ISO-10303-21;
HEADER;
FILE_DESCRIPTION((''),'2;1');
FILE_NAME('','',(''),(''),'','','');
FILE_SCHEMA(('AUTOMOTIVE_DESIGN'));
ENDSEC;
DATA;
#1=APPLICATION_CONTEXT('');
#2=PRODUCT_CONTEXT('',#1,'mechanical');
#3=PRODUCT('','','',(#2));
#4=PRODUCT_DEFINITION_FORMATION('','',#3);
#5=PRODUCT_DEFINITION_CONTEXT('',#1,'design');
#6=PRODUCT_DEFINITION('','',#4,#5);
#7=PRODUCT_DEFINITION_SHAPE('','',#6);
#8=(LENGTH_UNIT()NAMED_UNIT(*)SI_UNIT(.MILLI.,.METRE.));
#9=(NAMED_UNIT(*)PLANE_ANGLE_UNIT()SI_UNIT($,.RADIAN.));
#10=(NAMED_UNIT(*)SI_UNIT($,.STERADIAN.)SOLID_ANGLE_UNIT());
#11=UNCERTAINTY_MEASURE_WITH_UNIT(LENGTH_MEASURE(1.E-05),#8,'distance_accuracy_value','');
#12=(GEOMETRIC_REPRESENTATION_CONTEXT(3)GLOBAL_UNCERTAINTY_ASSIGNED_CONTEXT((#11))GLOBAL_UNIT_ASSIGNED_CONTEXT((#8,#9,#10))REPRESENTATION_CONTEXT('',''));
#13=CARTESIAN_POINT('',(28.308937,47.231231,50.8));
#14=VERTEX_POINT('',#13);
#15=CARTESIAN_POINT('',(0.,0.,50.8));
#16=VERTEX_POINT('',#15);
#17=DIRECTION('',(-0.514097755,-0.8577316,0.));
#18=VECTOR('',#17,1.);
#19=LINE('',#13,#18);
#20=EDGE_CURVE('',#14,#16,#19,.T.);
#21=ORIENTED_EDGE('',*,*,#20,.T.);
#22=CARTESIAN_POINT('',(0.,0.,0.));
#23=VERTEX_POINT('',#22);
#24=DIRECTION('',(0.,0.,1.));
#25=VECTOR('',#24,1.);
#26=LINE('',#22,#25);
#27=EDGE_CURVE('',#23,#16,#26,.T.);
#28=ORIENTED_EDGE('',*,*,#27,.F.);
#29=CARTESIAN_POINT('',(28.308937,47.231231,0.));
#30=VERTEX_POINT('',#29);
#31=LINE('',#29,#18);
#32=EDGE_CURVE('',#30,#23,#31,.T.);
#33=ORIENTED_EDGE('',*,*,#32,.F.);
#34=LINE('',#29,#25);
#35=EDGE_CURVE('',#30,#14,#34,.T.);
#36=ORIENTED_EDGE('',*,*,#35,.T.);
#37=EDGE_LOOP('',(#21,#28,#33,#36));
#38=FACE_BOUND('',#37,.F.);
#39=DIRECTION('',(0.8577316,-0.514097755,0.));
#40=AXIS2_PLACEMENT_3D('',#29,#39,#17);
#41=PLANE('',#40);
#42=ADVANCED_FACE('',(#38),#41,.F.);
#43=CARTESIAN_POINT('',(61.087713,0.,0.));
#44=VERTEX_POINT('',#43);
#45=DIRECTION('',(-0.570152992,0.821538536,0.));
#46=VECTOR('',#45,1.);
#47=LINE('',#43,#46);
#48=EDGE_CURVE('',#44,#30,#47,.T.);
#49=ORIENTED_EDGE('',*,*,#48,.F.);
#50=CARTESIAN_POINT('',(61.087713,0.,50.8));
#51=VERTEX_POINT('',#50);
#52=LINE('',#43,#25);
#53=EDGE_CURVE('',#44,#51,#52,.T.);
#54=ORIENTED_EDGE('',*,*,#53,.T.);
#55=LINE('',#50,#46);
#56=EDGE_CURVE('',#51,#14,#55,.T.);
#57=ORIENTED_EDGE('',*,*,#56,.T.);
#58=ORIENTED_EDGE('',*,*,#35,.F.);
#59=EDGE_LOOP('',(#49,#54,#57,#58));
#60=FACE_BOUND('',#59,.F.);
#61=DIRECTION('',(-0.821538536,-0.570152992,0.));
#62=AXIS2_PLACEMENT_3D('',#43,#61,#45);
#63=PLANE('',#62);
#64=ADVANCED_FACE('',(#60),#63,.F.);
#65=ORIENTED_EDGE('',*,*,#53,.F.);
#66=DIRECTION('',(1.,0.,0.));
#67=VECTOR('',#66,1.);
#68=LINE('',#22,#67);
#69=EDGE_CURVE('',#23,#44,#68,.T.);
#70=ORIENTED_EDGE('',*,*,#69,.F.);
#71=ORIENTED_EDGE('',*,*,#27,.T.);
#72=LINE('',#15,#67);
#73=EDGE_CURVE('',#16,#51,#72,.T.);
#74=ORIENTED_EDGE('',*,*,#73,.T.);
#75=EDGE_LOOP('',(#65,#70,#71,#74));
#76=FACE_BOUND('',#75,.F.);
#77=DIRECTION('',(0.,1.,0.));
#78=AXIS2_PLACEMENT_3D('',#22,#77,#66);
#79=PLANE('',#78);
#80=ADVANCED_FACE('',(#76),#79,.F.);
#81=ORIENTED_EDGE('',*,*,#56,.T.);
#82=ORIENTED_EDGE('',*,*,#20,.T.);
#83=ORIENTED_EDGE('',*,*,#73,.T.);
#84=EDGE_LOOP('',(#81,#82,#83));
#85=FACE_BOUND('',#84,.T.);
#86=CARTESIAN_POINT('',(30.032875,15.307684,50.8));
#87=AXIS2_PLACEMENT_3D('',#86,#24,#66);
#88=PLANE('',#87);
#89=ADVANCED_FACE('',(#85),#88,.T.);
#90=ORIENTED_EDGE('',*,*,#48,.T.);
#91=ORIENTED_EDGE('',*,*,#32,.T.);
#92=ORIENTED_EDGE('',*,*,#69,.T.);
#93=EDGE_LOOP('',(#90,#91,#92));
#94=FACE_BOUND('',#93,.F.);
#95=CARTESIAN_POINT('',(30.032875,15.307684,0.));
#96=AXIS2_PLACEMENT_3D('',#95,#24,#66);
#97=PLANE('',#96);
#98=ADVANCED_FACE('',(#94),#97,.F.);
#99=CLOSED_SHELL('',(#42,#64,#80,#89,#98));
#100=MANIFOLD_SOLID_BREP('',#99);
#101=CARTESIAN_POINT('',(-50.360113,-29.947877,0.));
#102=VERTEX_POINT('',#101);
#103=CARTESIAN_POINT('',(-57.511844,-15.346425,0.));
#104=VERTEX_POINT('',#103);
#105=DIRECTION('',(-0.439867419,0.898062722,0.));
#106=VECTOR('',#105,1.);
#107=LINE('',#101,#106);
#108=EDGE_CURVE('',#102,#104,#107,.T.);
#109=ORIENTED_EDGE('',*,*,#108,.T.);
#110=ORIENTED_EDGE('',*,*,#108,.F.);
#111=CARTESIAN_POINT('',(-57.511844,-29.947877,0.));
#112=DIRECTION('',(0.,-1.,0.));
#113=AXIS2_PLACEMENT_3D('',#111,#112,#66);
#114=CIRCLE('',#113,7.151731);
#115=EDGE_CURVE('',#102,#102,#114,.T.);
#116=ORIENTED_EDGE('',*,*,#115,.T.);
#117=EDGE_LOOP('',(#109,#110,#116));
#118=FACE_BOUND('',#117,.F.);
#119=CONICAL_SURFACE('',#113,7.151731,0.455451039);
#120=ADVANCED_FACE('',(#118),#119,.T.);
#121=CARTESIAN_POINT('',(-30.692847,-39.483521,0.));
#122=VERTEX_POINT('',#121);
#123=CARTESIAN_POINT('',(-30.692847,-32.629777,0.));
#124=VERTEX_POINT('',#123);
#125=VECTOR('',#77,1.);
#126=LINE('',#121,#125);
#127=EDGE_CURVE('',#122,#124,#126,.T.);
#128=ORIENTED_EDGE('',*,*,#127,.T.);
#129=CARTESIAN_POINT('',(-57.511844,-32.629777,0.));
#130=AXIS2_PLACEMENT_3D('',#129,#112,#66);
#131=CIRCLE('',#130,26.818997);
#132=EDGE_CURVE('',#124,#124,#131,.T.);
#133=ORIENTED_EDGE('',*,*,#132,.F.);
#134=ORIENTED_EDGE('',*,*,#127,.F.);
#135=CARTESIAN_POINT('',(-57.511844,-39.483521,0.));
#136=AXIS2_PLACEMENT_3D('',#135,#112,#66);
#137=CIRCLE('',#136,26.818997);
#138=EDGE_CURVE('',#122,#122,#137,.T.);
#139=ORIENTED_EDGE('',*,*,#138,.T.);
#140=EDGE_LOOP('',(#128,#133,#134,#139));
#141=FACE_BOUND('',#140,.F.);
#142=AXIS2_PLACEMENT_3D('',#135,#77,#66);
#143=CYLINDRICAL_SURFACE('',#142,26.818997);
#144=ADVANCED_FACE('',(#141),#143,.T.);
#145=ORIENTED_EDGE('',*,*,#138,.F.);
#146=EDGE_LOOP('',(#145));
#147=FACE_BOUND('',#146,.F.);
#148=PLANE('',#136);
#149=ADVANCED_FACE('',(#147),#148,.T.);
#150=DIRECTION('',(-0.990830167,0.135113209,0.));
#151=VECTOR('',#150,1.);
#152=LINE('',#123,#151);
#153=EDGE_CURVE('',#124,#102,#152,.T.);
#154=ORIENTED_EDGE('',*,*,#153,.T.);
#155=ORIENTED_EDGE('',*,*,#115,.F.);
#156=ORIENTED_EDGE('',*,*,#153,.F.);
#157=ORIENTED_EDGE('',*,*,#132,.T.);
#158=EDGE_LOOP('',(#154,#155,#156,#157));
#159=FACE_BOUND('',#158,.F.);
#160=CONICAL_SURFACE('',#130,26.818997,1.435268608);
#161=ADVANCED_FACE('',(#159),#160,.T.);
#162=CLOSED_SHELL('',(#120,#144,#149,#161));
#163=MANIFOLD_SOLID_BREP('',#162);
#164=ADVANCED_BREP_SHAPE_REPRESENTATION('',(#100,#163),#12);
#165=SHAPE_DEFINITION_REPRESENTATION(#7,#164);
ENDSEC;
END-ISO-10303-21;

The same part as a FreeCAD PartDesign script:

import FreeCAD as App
import Part
import Sketcher
Q = App.Units.Quantity


def add_polygon(sketch, points):
    """Adds a closed chain of lines whose ends are joined by coincident constraints."""
    first, n = sketch.GeometryCount, len(points)
    for a, b in zip(points, points[1:] + points[:1]):
        sketch.addGeometry(Part.LineSegment(App.Vector(*a, 0), App.Vector(*b, 0)), False)
    for i in range(n):
        sketch.addConstraint(Sketcher.Constraint("Coincident", first + i, 2, first + (i + 1) % n, 1))

doc = App.newDocument("Part")
params = doc.addObject("Spreadsheet::Sheet", "Params")
for row, (alias, value) in enumerate([
    ("pad1_length", "2 in"),
    ("revolution_angle", "360 deg"),
], start=1):
    params.set(f"A{row}", alias)
    params.set(f"B{row}", "=" + value)
    params.setAlias(f"B{row}", alias)

body = doc.addObject("PartDesign::Body", "Body")

sketch1 = body.newObject("Sketcher::SketchObject", "Sketch")
sketch1.AttachmentSupport = (doc.getObject("XY_Plane"), [""])
sketch1.MapMode = "FlatFace"
add_polygon(sketch1, [(28.308937, 47.231231), (0, 0), (61.087713, 0)])
sketch1.addConstraint(Sketcher.Constraint("Horizontal", 1))
sketch1.addConstraint(Sketcher.Constraint("Coincident", 0, 2, -1, 1))
sketch1.addConstraint(Sketcher.Constraint("Distance", 0, Q("55.06528 mm")))
sketch1.addConstraint(Sketcher.Constraint("DistanceX", 1, 1, 1, 2, Q("61.087713 mm")))
sketch1.addConstraint(Sketcher.Constraint("DistanceY", -1, 1, 2, 2, Q("47.231231 mm")))
pad1 = body.newObject("PartDesign::Pad", "Pad")
pad1.Profile = sketch1
pad1.setExpression("Length", "Params.pad1_length")
body2 = doc.addObject("PartDesign::Body", "Body001")

sketch2 = body2.newObject("Sketcher::SketchObject", "Sketch001")
sketch2.AttachmentSupport = (doc.getObject("XY_Plane001"), [""])
sketch2.MapMode = "FlatFace"
add_polygon(sketch2, [(-50.360113, -29.947877), (-57.511844, -15.346425), (-57.511844, -39.483521), (-30.692847, -39.483521), (-30.692847, -32.629777)])
sketch2.addGeometry(Part.LineSegment(App.Vector(-57.511844, -15.346425, 0), App.Vector(-57.511844, -39.483521, 0)), True)
sketch2.addConstraint(Sketcher.Constraint("Vertical", 1))
sketch2.addConstraint(Sketcher.Constraint("Horizontal", 2))
sketch2.addConstraint(Sketcher.Constraint("Vertical", 3))
sketch2.addConstraint(Sketcher.Constraint("Vertical", 5))
sketch2.addConstraint(Sketcher.Constraint("Coincident", 5, 1, 0, 2))
sketch2.addConstraint(Sketcher.Constraint("Horizontal", 2, 2, 5, 2))
sketch2.addConstraint(Sketcher.Constraint("DistanceY", 3, 2, 4, 2, Q("2.6819 mm")))
sketch2.addConstraint(Sketcher.Constraint("Distance", 4, Q("19.849281 mm")))
sketch2.addConstraint(Sketcher.Constraint("DistanceX", 2, 1, 2, 2, Q("26.818997 mm")))
sketch2.addConstraint(Sketcher.Constraint("DistanceY", 1, 2, 1, 1, Q("24.137096 mm")))
sketch2.addConstraint(Sketcher.Constraint("DistanceY", 3, 1, 3, 2, Q("6.853744 mm")))
sketch2.addConstraint(Sketcher.Constraint("DistanceY", 1, 2, -1, 1, Q("39.483521 mm")))
sketch2.addConstraint(Sketcher.Constraint("DistanceX", 0, 2, -1, 1, Q("57.511844 mm")))
revolution = body2.newObject("PartDesign::Revolution", "Revolution")
revolution.Profile = sketch2
revolution.ReferenceAxis = (sketch2, ["Axis0"])
revolution.setExpression("Angle", "Params.revolution_angle")

doc.recompute()
